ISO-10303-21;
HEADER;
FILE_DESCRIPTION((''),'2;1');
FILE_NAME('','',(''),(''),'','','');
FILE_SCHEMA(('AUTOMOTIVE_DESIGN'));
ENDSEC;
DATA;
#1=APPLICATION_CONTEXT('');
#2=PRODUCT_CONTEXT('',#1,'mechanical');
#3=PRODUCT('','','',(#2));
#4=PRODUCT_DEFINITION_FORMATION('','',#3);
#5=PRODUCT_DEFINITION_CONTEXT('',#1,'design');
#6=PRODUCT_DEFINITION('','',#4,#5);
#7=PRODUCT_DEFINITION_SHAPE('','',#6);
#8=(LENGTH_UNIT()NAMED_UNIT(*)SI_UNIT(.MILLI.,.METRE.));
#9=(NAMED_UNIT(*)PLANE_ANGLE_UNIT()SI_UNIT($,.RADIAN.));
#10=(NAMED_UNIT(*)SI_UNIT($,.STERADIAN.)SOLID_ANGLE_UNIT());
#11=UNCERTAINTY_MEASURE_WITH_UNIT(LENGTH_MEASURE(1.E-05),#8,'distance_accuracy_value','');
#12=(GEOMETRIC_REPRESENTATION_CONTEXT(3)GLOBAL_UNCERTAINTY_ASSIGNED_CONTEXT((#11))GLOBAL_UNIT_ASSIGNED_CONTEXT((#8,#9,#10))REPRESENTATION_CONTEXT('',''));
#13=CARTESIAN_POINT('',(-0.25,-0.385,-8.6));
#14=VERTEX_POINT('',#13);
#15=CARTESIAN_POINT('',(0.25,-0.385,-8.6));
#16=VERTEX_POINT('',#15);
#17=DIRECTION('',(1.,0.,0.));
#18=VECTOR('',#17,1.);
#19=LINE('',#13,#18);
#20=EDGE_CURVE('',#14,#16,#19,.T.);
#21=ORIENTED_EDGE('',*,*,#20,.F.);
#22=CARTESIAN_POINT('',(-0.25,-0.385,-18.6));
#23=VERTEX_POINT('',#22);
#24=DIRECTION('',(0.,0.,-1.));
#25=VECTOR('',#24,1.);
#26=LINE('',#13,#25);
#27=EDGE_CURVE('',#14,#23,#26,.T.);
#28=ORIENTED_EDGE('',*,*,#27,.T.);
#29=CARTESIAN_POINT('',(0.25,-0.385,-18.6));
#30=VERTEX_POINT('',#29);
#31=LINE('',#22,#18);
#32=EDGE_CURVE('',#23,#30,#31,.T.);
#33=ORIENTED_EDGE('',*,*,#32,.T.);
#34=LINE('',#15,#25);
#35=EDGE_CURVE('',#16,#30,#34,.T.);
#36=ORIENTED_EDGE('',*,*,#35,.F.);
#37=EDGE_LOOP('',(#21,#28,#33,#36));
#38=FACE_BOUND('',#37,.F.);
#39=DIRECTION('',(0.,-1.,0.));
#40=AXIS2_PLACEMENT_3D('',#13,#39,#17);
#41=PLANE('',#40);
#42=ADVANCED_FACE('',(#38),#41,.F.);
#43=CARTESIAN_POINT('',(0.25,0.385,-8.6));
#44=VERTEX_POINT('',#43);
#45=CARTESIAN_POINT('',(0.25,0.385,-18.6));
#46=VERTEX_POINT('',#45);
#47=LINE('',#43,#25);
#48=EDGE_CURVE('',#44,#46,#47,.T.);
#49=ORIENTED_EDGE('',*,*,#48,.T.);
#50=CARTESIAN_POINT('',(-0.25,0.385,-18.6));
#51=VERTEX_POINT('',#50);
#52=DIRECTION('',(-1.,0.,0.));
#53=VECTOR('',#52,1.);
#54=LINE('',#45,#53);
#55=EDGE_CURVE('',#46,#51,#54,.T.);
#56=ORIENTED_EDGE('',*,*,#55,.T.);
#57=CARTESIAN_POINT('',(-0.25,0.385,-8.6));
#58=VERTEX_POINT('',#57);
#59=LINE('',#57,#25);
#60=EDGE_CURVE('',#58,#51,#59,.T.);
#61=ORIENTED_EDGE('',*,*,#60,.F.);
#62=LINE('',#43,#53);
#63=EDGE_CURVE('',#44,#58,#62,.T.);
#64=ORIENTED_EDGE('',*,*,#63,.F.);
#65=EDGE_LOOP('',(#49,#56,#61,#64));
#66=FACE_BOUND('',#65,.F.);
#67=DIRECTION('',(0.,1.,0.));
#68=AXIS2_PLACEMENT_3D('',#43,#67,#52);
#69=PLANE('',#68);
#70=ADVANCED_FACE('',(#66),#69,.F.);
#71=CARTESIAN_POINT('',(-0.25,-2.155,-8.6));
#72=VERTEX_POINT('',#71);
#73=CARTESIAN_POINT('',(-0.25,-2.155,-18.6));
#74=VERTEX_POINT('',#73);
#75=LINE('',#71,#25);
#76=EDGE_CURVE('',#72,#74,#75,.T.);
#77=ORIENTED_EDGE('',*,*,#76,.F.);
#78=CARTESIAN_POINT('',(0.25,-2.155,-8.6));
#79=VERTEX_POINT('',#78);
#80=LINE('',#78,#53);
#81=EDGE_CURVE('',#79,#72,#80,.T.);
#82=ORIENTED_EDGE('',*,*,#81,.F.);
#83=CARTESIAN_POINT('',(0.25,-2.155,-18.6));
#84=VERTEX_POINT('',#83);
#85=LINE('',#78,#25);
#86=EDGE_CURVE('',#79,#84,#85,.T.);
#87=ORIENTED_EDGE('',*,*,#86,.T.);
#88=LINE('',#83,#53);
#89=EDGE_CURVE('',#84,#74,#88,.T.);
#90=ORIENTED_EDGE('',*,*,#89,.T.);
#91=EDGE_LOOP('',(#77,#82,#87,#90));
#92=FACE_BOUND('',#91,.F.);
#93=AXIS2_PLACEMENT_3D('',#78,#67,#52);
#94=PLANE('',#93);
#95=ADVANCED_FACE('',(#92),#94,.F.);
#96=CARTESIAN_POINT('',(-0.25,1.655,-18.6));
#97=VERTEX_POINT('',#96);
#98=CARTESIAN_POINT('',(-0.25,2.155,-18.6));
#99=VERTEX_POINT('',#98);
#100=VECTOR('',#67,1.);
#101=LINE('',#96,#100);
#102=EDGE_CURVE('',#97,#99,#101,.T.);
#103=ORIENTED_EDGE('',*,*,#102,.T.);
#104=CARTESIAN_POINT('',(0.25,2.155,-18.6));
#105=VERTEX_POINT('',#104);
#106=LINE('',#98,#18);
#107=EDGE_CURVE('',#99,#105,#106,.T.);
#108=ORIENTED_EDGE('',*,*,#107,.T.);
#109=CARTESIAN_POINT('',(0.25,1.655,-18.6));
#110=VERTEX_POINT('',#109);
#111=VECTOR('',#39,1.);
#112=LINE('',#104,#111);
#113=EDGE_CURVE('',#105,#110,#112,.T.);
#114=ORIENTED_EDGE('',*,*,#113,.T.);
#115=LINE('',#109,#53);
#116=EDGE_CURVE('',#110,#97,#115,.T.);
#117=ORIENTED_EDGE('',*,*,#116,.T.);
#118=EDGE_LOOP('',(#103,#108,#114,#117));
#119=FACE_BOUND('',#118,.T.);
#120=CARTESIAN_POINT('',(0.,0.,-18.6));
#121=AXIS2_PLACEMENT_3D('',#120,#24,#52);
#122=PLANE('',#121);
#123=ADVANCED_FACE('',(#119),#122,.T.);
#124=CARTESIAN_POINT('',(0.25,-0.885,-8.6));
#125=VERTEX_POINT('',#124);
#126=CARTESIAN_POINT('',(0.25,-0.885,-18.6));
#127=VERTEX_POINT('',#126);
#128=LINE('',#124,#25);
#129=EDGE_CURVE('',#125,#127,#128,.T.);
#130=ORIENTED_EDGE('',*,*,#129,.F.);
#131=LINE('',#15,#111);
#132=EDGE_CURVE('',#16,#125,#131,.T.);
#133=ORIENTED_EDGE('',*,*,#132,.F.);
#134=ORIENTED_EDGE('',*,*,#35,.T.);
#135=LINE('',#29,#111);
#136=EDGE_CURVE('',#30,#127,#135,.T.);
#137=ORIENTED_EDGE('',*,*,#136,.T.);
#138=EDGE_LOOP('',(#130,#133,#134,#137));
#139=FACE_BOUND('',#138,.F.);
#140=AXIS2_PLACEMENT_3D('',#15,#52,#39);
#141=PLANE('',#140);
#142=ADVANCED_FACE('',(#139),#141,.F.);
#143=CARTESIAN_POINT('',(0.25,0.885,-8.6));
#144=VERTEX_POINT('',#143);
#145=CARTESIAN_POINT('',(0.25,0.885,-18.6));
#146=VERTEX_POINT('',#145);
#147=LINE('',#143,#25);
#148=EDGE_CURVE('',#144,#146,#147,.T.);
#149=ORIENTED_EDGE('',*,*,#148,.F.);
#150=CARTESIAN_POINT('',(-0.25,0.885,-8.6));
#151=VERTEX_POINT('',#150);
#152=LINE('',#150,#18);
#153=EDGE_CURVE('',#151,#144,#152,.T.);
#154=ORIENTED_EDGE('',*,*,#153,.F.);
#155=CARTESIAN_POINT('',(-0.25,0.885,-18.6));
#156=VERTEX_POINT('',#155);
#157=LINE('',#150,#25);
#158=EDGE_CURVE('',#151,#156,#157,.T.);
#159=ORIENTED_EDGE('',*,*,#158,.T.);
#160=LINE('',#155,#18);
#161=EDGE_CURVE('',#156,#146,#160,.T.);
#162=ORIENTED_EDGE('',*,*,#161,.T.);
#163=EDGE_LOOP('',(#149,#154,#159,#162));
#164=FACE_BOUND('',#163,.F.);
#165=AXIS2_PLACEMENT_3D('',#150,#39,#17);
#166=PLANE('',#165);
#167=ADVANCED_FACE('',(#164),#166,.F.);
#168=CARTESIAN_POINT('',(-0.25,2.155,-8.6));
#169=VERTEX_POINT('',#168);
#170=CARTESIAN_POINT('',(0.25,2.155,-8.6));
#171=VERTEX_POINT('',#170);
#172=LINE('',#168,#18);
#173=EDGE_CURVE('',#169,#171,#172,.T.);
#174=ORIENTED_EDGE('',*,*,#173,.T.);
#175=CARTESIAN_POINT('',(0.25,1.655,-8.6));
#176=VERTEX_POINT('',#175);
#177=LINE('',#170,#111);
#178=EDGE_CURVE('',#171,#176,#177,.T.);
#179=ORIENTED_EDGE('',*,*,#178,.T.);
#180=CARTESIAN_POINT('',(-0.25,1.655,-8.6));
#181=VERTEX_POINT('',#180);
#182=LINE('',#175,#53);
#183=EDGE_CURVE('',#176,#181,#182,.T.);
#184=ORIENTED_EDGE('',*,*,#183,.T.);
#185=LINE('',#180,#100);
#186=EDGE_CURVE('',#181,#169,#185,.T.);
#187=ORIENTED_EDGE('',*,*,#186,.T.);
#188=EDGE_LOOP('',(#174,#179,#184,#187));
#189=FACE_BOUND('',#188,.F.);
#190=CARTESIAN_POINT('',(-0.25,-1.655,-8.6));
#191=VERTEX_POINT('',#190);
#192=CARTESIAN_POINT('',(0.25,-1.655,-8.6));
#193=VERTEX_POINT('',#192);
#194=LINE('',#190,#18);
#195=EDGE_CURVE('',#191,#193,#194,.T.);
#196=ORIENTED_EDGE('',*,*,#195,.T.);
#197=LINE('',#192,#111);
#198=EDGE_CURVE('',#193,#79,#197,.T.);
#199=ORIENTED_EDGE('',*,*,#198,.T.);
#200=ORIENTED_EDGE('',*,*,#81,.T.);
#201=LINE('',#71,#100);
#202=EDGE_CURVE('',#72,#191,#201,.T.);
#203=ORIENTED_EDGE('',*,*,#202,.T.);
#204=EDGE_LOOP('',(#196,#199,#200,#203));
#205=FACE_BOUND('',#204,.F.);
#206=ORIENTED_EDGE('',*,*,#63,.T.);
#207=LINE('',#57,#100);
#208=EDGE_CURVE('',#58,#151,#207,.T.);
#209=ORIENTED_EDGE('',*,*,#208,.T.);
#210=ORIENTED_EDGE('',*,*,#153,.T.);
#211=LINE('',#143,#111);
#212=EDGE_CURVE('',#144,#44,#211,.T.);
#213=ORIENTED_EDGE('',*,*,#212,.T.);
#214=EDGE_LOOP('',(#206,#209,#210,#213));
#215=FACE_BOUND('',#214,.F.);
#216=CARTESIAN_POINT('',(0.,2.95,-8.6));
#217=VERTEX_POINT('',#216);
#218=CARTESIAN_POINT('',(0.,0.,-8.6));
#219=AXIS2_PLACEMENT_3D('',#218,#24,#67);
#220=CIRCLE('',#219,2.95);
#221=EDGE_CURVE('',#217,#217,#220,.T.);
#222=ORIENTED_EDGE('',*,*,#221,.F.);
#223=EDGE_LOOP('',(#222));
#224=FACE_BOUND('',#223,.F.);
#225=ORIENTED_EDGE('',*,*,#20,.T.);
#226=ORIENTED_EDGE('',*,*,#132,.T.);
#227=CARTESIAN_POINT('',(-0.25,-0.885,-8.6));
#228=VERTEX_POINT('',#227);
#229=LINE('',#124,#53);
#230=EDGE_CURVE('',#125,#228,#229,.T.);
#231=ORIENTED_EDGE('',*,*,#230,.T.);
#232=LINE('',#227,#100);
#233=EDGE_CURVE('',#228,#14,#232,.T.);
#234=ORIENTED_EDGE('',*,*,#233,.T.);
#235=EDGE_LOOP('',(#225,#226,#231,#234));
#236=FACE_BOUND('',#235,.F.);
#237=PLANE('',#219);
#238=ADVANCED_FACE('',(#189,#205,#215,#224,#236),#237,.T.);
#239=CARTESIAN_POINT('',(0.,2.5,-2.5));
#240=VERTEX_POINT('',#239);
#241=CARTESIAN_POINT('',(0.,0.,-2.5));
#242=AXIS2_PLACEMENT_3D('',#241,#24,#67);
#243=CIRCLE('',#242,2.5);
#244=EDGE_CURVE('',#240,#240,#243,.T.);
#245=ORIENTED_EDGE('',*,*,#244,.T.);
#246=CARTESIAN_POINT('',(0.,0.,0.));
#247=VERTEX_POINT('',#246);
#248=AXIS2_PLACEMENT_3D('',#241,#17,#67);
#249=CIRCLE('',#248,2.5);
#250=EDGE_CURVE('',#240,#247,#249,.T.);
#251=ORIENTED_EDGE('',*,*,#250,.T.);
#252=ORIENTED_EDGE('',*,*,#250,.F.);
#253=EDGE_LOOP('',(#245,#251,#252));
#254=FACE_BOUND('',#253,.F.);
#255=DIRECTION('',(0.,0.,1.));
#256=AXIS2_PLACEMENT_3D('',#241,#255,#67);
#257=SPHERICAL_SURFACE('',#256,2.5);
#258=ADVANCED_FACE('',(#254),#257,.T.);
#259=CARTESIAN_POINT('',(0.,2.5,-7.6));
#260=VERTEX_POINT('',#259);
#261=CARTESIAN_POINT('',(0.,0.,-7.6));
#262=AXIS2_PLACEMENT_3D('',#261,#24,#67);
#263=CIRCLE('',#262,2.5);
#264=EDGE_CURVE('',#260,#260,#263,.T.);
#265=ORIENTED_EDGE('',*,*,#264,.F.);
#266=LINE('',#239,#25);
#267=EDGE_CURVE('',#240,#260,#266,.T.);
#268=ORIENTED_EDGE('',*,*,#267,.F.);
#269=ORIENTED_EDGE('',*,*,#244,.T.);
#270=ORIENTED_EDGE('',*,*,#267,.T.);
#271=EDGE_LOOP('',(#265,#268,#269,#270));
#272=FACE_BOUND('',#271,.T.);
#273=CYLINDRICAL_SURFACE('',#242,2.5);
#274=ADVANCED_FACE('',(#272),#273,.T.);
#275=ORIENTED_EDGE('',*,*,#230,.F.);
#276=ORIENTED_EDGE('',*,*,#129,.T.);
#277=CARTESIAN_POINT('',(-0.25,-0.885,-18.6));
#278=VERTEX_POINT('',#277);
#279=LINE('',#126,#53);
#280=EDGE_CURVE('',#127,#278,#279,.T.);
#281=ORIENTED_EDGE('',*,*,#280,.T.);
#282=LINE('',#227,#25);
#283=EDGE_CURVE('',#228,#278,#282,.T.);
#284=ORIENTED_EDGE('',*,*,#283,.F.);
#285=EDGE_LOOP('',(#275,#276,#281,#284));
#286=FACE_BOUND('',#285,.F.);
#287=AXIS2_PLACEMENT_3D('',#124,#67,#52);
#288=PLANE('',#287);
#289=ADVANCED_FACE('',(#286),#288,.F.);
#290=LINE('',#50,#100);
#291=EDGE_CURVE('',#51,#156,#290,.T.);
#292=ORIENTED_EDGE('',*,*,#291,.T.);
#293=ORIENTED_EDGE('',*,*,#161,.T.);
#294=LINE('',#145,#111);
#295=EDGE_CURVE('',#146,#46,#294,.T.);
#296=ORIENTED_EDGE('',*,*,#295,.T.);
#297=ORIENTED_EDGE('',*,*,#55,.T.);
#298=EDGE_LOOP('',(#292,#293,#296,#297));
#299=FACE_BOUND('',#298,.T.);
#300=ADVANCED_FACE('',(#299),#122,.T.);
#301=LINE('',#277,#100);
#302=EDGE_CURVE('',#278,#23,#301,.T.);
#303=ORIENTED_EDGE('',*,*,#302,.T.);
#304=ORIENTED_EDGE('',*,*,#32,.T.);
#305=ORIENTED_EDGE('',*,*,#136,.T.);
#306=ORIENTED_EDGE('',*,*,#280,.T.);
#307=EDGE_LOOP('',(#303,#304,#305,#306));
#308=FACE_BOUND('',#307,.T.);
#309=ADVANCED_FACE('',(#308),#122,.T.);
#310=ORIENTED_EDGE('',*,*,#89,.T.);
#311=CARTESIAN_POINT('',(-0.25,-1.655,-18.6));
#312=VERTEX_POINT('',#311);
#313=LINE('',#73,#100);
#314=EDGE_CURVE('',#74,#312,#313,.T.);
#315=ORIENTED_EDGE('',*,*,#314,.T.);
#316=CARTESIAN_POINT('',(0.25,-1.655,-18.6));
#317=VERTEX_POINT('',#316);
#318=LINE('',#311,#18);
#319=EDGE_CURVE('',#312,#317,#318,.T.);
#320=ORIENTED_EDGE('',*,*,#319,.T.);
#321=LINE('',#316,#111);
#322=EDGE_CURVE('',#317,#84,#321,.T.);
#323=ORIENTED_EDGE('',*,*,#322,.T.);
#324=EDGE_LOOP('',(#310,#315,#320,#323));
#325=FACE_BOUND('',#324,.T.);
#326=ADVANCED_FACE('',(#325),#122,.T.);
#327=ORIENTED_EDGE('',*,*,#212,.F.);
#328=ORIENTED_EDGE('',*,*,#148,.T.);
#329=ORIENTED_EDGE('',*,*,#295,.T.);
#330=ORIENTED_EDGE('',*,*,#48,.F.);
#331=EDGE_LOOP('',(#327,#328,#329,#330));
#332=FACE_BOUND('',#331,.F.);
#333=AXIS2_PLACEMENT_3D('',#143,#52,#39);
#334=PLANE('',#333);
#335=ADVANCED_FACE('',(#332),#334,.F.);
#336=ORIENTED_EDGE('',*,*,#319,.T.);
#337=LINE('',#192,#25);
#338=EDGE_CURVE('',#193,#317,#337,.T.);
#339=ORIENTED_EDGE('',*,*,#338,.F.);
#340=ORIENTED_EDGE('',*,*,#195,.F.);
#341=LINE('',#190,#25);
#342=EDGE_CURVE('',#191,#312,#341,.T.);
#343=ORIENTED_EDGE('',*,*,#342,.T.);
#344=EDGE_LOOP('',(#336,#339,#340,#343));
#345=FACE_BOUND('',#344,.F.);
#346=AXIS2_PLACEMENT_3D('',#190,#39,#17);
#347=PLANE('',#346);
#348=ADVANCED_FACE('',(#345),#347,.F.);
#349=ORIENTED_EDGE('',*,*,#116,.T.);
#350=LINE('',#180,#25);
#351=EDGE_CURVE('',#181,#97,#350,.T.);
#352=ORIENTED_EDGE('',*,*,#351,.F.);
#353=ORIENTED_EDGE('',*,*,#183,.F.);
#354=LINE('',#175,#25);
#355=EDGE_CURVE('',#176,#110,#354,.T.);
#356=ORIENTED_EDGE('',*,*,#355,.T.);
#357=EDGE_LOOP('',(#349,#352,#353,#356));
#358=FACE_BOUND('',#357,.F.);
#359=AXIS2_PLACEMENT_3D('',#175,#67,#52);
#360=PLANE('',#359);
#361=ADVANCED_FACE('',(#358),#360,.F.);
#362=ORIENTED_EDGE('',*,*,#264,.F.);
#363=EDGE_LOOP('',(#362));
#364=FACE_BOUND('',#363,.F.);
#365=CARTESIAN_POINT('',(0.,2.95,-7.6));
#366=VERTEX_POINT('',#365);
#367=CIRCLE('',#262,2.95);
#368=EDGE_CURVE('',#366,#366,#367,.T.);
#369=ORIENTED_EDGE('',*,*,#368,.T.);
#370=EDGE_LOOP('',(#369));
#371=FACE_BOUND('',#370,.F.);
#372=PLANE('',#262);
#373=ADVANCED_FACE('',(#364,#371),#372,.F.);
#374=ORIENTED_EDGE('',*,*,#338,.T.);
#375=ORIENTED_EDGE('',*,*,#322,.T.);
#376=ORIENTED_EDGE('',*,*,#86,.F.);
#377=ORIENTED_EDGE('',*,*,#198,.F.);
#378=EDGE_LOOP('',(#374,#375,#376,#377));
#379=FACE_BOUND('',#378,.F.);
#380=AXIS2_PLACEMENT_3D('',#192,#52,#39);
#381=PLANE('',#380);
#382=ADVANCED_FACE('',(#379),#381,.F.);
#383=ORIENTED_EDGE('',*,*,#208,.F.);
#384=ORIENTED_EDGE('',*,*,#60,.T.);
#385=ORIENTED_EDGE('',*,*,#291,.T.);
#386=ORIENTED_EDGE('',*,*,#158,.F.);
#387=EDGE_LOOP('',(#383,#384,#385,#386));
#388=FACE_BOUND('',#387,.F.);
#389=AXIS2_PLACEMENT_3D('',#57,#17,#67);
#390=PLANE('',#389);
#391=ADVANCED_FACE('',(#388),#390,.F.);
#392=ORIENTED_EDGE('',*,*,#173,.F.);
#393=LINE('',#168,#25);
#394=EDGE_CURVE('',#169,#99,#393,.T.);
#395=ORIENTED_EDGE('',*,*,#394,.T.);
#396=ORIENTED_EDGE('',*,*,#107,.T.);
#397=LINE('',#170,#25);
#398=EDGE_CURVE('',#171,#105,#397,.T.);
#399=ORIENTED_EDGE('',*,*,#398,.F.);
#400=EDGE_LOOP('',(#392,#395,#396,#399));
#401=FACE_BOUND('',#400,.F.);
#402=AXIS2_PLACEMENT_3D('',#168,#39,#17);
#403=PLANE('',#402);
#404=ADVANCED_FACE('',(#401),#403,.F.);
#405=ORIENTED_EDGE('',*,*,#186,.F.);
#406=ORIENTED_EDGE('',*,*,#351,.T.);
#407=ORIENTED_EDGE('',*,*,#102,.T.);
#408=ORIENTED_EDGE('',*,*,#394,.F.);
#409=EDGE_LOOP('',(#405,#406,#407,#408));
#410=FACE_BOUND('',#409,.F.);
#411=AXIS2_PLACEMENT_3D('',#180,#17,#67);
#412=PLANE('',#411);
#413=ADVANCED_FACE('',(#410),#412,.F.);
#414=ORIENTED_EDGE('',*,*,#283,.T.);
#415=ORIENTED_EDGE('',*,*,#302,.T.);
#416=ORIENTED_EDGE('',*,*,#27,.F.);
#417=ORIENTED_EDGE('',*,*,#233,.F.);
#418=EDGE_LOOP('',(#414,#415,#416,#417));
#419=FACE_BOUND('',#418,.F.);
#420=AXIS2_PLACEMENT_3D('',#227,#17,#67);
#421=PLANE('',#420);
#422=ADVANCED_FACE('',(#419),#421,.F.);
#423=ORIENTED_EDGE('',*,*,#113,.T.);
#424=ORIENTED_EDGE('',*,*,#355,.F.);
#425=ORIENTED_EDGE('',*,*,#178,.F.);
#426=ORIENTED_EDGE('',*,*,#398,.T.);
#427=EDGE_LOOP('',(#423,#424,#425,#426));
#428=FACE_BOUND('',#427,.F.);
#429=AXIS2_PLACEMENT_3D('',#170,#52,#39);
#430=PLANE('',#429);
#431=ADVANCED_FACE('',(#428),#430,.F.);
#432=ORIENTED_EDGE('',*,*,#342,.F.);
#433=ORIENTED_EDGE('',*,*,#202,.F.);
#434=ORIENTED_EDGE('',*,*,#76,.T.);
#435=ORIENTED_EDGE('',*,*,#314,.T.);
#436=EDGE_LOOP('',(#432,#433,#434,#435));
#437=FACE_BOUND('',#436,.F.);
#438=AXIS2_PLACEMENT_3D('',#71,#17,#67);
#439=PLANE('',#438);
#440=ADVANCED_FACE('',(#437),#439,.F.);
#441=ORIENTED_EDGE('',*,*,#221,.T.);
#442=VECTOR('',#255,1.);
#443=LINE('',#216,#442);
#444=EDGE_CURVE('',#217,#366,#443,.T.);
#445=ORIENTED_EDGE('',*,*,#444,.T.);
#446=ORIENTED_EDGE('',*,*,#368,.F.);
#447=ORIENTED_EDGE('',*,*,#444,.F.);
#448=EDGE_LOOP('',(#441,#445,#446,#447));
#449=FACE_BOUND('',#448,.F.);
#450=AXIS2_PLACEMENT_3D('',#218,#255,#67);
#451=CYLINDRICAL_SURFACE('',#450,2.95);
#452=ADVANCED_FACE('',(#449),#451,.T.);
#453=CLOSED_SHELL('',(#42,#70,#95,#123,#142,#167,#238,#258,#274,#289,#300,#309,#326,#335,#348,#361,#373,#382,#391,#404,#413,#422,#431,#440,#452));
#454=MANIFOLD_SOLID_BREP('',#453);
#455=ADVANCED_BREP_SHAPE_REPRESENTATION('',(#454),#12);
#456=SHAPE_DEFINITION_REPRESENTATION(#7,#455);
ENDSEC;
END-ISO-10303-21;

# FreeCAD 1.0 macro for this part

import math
import FreeCAD as App
import Part
import Sketcher

V = App.Vector


def add_polygon(sketch, points):
    """Adds a closed chain of lines whose ends are joined by coincident constraints."""
    first, n = sketch.GeometryCount, len(points)
    for a, b in zip(points, points[1:] + points[:1]):
        sketch.addGeometry(Part.LineSegment(App.Vector(*a, 0), App.Vector(*b, 0)), False)
    for i in range(n):
        sketch.addConstraint(Sketcher.Constraint("Coincident", first + i, 2, first + (i + 1) % n, 1))

doc = App.newDocument("Part")
body = doc.addObject("PartDesign::Body", "Body")

sketch1 = body.newObject("Sketcher::SketchObject", "Sketch")
sketch1.AttachmentSupport = (doc.getObject("YZ_Plane"), [""])
sketch1.MapMode = "FlatFace"
sketch1.addGeometry(Part.ArcOfCircle(Part.Circle(V(0, -2.5, 0), V(0, 0, 1), 2.5), math.radians(0), math.radians(90)), False)
sketch1.addGeometry(Part.LineSegment(V(0, 0, 0), V(0, -8.6, 0)), False)
sketch1.addGeometry(Part.LineSegment(V(0, -8.6, 0), V(2.95, -8.6, 0)), False)
sketch1.addGeometry(Part.LineSegment(V(2.95, -8.6, 0), V(2.95, -7.6, 0)), False)
sketch1.addGeometry(Part.LineSegment(V(2.95, -7.6, 0), V(2.5, -7.6, 0)), False)
sketch1.addGeometry(Part.LineSegment(V(2.5, -7.6, 0), V(2.5, -2.5, 0)), False)
sketch1.addConstraint(Sketcher.Constraint("Coincident", 0, 2, 1, 1))
sketch1.addConstraint(Sketcher.Constraint("Coincident", 1, 2, 2, 1))
sketch1.addConstraint(Sketcher.Constraint("Coincident", 2, 2, 3, 1))
sketch1.addConstraint(Sketcher.Constraint("Coincident", 3, 2, 4, 1))
sketch1.addConstraint(Sketcher.Constraint("Coincident", 4, 2, 5, 1))
sketch1.addConstraint(Sketcher.Constraint("Tangent", 5, 2, 0, 1))
sketch1.addConstraint(Sketcher.Constraint("Vertical", 1))
sketch1.addConstraint(Sketcher.Constraint("Horizontal", 2))
sketch1.addConstraint(Sketcher.Constraint("Vertical", 3))
sketch1.addConstraint(Sketcher.Constraint("Horizontal", 4))
sketch1.addConstraint(Sketcher.Constraint("Vertical", 5))
sketch1.addConstraint(Sketcher.Constraint("Coincident", 0, 2, -1, 1))
sketch1.addConstraint(Sketcher.Constraint("PointOnObject", 0, 3, -2))
sketch1.addConstraint(Sketcher.Constraint("Radius", 0, 2.5))
sketch1.addConstraint(Sketcher.Constraint("DistanceY", 3, 1, 3, 2, 1.0))
sketch1.addConstraint(Sketcher.Constraint("DistanceY", 1, 2, 1, 1, 8.6))
sketch1.addConstraint(Sketcher.Constraint("DistanceX", 2, 1, 2, 2, 2.95))
revolution = body.newObject("PartDesign::Revolution", "Revolution")
revolution.Profile = sketch1
revolution.ReferenceAxis = (sketch1, ["V_Axis"])
revolution.Angle = 360

sketch2 = body.newObject("Sketcher::SketchObject", "Sketch001")
sketch2.AttachmentSupport = (doc.getObject("XY_Plane"), [""])
sketch2.MapMode = "FlatFace"
sketch2.AttachmentOffset = App.Placement(V(0, 0, -8.6), App.Rotation())
add_polygon(sketch2, [(-0.25, -2.15), (-0.25, -1.66), (0.25, -1.66), (0.25, -2.15)])
add_polygon(sketch2, [(-0.25, -0.89), (-0.25, -0.39), (0.25, -0.39), (0.25, -0.89)])
add_polygon(sketch2, [(-0.25, 0.39), (-0.25, 0.89), (0.25, 0.89), (0.25, 0.39)])
add_polygon(sketch2, [(-0.25, 1.66), (-0.25, 2.15), (0.25, 2.15), (0.25, 1.66)])
sketch2.addConstraint(Sketcher.Constraint("Vertical", 0))
sketch2.addConstraint(Sketcher.Constraint("Horizontal", 1))
sketch2.addConstraint(Sketcher.Constraint("Vertical", 2))
sketch2.addConstraint(Sketcher.Constraint("Horizontal", 3))
sketch2.addConstraint(Sketcher.Constraint("Vertical", 4))
sketch2.addConstraint(Sketcher.Constraint("Horizontal", 5))
sketch2.addConstraint(Sketcher.Constraint("Vertical", 6))
sketch2.addConstraint(Sketcher.Constraint("Horizontal", 7))
sketch2.addConstraint(Sketcher.Constraint("Vertical", 8))
sketch2.addConstraint(Sketcher.Constraint("Horizontal", 9))
sketch2.addConstraint(Sketcher.Constraint("Vertical", 10))
sketch2.addConstraint(Sketcher.Constraint("Horizontal", 11))
sketch2.addConstraint(Sketcher.Constraint("Vertical", 12))
sketch2.addConstraint(Sketcher.Constraint("Horizontal", 13))
sketch2.addConstraint(Sketcher.Constraint("Vertical", 14))
sketch2.addConstraint(Sketcher.Constraint("Horizontal", 15))
sketch2.addConstraint(Sketcher.Constraint("Symmetric", 6, 2, 8, 2, -1, 1))
sketch2.addConstraint(Sketcher.Constraint("Symmetric", 4, 2, 10, 2, -1, 1))
sketch2.addConstraint(Sketcher.Constraint("Symmetric", 2, 2, 12, 2, -1, 1))
sketch2.addConstraint(Sketcher.Constraint("Symmetric", 0, 2, 14, 2, -1, 1))
sketch2.addConstraint(Sketcher.Constraint("Vertical", 3, 2, 4, 2))
sketch2.addConstraint(Sketcher.Constraint("Vertical", 2, 2, 5, 2))
sketch2.addConstraint(Sketcher.Constraint("Vertical", 7, 2, 8, 2))
sketch2.addConstraint(Sketcher.Constraint("Equal", 15, 0))
sketch2.addConstraint(Sketcher.Constraint("Equal", 2, 4))
sketch2.addConstraint(Sketcher.Constraint("DistanceX", 1, 1, 1, 2, 0.5))
sketch2.addConstraint(Sketcher.Constraint("DistanceY", 0, 2, 4, 2, 1.27))
sketch2.addConstraint(Sketcher.Constraint("DistanceY", 4, 2, 8, 2, 1.27))
pad1 = body.newObject("PartDesign::Pad", "Pad")
pad1.Profile = sketch2
pad1.Length = 10
pad1.Reversed = True

doc.recompute()
